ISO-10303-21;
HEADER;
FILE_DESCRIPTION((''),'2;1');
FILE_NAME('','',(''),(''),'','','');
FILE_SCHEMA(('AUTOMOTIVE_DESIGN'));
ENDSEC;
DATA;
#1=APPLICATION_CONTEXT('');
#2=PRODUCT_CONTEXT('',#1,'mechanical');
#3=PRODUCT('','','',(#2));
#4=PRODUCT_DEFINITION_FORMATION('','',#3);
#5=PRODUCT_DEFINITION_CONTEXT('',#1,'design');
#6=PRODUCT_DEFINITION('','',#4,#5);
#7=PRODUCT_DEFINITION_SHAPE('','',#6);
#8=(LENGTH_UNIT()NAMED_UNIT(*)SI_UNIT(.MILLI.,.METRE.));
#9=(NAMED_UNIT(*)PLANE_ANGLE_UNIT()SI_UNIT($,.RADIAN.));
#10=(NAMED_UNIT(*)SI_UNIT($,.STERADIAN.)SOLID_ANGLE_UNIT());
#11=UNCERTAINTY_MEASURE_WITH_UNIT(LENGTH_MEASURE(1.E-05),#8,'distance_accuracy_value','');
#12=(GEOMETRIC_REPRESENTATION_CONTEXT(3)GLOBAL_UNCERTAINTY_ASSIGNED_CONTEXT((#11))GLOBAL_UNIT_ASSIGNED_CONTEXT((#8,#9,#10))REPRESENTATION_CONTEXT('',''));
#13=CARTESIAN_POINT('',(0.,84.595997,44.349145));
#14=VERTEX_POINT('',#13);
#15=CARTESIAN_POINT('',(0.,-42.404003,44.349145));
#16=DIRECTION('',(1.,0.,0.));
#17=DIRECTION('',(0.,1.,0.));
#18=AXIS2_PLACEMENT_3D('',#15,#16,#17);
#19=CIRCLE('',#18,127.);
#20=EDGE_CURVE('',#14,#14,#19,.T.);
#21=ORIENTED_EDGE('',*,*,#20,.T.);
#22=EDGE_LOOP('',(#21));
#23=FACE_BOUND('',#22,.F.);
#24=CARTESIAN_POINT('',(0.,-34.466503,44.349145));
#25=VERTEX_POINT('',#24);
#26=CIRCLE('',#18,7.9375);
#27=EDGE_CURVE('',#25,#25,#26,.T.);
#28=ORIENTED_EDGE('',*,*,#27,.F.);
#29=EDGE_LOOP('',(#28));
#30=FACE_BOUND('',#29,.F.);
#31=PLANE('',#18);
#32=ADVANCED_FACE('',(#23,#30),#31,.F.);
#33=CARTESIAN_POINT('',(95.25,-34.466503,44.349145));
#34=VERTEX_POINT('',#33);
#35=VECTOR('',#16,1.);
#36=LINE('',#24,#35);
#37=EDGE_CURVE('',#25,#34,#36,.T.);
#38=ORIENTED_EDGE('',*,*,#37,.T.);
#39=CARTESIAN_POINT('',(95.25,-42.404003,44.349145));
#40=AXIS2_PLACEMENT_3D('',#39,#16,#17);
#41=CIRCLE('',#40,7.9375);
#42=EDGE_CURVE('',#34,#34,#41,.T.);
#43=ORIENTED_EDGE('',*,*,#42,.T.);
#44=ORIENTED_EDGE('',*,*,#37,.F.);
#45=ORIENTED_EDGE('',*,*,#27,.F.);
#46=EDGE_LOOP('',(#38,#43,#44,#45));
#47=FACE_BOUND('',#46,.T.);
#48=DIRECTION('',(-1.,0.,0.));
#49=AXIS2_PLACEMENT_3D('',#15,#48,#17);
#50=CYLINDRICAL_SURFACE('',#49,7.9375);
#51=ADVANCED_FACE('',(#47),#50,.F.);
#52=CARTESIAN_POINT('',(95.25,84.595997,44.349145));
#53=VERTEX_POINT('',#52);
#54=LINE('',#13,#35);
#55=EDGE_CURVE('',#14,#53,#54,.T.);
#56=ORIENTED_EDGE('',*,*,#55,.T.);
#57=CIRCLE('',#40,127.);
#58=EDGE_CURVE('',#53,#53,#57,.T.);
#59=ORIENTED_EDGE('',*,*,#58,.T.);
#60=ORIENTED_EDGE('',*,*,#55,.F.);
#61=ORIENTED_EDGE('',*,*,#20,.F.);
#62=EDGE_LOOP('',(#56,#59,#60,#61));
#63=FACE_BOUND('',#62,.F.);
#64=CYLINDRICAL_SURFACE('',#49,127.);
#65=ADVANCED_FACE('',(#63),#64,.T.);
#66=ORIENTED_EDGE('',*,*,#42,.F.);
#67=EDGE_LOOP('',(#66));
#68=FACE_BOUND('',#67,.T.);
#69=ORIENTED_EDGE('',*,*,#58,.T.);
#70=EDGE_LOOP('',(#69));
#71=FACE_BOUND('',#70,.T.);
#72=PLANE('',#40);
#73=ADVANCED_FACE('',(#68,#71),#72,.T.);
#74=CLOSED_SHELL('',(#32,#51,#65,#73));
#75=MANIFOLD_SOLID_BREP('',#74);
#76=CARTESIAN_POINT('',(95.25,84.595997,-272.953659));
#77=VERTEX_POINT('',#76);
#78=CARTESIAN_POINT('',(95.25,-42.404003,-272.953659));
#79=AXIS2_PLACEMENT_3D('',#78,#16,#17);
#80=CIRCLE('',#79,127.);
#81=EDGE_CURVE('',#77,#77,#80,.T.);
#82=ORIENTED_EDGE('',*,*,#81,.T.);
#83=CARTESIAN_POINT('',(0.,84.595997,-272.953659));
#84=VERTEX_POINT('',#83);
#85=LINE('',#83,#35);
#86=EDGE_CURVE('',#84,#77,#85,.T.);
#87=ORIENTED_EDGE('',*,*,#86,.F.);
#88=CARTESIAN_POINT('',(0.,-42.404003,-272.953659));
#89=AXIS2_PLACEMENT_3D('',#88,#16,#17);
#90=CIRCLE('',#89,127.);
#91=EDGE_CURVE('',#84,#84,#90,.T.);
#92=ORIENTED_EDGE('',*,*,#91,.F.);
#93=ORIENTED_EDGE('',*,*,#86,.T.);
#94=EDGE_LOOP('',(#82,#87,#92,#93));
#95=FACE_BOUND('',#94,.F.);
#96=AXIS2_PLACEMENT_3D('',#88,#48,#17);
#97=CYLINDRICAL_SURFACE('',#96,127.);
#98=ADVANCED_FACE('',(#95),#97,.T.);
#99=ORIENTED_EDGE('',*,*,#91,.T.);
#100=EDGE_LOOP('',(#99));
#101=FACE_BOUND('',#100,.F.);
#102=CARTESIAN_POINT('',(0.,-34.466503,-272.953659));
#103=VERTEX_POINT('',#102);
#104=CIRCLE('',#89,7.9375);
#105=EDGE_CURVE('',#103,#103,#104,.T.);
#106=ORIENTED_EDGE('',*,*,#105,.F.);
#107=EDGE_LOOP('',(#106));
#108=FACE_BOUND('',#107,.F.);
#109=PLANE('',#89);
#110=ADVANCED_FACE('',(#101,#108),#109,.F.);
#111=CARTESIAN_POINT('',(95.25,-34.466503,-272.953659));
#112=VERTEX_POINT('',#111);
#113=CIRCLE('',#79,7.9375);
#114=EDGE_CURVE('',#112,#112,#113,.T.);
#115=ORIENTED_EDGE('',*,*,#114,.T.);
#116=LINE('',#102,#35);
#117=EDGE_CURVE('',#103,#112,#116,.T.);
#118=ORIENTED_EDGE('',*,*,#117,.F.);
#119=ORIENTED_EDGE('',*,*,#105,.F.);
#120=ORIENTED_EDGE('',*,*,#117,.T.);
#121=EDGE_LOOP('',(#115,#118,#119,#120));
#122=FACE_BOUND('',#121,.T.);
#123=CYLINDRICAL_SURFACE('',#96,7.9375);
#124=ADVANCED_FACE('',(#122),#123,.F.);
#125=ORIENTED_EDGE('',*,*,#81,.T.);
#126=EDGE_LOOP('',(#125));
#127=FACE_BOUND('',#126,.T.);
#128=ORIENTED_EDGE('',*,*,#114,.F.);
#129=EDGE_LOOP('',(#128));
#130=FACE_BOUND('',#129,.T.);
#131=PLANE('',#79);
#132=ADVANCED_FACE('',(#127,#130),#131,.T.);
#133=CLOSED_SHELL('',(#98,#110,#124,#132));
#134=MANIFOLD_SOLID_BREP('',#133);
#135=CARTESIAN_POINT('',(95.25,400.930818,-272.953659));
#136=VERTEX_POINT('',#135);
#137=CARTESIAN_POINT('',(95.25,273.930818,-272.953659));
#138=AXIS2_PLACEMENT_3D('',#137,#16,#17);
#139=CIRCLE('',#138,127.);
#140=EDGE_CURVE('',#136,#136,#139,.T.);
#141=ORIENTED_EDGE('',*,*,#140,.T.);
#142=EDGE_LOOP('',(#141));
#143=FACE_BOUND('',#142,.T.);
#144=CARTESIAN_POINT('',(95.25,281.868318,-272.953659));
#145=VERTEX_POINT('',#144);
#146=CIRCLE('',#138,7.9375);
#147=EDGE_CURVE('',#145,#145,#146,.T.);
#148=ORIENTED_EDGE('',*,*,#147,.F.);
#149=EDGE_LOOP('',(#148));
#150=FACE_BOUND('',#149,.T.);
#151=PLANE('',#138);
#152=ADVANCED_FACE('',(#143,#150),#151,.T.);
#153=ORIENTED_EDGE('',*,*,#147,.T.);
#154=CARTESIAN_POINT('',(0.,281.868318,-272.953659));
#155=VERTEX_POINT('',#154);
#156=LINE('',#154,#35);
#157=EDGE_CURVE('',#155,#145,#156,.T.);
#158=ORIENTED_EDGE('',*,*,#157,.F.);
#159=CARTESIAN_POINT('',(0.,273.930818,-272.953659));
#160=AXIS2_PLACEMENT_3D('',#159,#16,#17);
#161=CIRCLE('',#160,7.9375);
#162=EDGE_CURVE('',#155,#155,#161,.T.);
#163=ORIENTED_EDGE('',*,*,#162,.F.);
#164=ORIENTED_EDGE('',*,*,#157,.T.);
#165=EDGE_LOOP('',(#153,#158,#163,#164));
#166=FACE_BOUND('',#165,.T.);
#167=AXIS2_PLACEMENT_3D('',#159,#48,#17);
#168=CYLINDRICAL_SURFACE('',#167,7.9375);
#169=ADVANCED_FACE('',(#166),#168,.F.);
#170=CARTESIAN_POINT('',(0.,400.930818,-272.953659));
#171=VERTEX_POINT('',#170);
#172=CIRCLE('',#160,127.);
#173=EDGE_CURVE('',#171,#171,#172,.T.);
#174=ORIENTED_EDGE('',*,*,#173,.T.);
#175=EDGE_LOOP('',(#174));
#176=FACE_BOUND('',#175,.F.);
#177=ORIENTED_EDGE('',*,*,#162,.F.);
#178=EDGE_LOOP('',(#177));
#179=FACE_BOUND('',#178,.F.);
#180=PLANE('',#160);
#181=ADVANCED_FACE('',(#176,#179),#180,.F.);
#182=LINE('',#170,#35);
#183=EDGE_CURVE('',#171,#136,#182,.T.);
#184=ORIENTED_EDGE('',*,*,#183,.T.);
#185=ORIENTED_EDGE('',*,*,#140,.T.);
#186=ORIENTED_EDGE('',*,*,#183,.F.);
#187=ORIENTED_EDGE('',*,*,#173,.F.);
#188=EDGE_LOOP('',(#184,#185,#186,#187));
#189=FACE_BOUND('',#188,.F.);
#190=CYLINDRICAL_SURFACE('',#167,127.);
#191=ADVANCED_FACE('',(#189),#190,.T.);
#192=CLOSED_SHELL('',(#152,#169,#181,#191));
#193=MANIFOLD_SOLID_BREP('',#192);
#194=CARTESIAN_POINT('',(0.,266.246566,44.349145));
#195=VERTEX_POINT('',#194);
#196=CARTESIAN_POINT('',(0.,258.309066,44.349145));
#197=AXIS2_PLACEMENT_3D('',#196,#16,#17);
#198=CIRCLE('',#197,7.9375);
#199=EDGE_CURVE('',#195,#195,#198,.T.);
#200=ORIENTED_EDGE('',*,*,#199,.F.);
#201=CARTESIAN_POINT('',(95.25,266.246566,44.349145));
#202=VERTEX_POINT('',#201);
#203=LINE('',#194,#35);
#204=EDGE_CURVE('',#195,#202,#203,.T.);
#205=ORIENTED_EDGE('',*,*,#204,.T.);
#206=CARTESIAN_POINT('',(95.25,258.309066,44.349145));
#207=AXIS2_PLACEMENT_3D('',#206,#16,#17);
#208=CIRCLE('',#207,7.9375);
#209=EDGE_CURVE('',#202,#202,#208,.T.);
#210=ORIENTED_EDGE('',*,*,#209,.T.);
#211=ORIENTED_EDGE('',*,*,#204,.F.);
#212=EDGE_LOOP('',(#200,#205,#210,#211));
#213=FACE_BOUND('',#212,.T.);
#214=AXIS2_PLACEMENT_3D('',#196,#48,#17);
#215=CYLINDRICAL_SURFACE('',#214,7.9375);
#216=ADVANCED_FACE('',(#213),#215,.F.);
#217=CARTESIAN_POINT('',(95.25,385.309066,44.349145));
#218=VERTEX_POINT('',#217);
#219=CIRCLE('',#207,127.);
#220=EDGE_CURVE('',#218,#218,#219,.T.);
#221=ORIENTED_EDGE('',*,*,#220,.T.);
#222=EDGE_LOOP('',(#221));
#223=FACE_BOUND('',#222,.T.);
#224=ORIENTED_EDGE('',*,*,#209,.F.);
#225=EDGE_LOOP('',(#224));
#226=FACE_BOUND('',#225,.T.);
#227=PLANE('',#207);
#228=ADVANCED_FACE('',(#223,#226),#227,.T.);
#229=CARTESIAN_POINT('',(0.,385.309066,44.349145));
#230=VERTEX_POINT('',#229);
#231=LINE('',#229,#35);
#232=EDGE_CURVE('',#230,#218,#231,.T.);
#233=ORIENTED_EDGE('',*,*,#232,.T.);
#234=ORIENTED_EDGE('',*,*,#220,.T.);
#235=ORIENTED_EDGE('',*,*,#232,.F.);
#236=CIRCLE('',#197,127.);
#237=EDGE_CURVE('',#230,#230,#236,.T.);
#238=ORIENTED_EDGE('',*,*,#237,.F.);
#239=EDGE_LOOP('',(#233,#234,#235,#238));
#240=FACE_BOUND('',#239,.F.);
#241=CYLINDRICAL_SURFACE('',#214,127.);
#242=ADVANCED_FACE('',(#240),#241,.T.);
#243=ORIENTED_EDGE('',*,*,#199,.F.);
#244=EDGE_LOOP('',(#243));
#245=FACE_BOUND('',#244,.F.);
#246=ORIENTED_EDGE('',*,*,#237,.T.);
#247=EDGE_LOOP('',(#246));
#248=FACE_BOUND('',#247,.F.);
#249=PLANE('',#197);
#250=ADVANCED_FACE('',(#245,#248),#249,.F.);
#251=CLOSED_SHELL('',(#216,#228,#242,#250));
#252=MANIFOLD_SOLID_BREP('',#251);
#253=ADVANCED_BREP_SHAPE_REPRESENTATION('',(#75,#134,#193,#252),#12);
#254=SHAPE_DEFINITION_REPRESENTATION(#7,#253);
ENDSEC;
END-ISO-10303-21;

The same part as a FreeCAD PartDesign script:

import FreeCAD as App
import Part
import Sketcher
from FreeCAD import Vector
Q = App.Units.Quantity

doc = App.newDocument("Part")
body = doc.addObject("PartDesign::Body", "Body")
body.AllowCompound = True

# Sketch on YZ plane
sketch1 = doc.addObject("Sketcher::SketchObject", "Sketch")
body.addObject(sketch1)
sketch1.AttachmentSupport = (doc.YZ_Plane, [""])
sketch1.MapMode = "FlatFace"
sketch1.addGeometry(Part.Circle(Vector(-42, 44, 0), Vector(0, 0, 1), 127), False)
sketch1.addGeometry(Part.Circle(Vector(-42, 44, 0), Vector(0, 0, 1), 8), False)
sketch1.addGeometry(Part.Circle(Vector(258, 44, 0), Vector(0, 0, 1), 127), False)
sketch1.addGeometry(Part.Circle(Vector(258, 44, 0), Vector(0, 0, 1), 8), False)
sketch1.addGeometry(Part.Circle(Vector(274, -273, 0), Vector(0, 0, 1), 127), False)
sketch1.addGeometry(Part.Circle(Vector(274, -273, 0), Vector(0, 0, 1), 8), False)
sketch1.addGeometry(Part.Circle(Vector(-42, -273, 0), Vector(0, 0, 1), 127), False)
sketch1.addGeometry(Part.Circle(Vector(-42, -273, 0), Vector(0, 0, 1), 8), False)
sketch1.addConstraint(Sketcher.Constraint("Coincident", 1, 3, 0, 3))
sketch1.addConstraint(Sketcher.Constraint("Coincident", 3, 3, 2, 3))
sketch1.addConstraint(Sketcher.Constraint("Coincident", 5, 3, 4, 3))
sketch1.addConstraint(Sketcher.Constraint("Coincident", 7, 3, 6, 3))
sketch1.addConstraint(Sketcher.Constraint("Equal", 0, 2))
sketch1.addConstraint(Sketcher.Constraint("Equal", 1, 3))
sketch1.addConstraint(Sketcher.Constraint("Equal", 2, 4))
sketch1.addConstraint(Sketcher.Constraint("Equal", 3, 5))
sketch1.addConstraint(Sketcher.Constraint("Equal", 4, 6))
sketch1.addConstraint(Sketcher.Constraint("Equal", 5, 7))
sketch1.addConstraint(Sketcher.Constraint("Horizontal", 1, 3, 2, 3))
sketch1.addConstraint(Sketcher.Constraint("Horizontal", 5, 3, 6, 3))
sketch1.addConstraint(Sketcher.Constraint("Vertical", 1, 3, 6, 3))
sketch1.addConstraint(Sketcher.Constraint("Diameter", 0, Q("10 in")))
sketch1.addConstraint(Sketcher.Constraint("Diameter", 1, Q("0.625 in")))
sketch1.addConstraint(Sketcher.Constraint("DistanceX", -1, 1, 4, 3, 273.930818))
sketch1.addConstraint(Sketcher.Constraint("DistanceY", 4, 3, -1, 1, 272.953659))
sketch1.addConstraint(Sketcher.Constraint("DistanceX", 0, 3, 2, 3, 300.713069))
sketch1.addConstraint(Sketcher.Constraint("DistanceX", 0, 3, 4, 3, 316.334821))
sketch1.addConstraint(Sketcher.Constraint("DistanceY", -1, 1, 0, 3, 44.349145))
pad1 = doc.addObject("PartDesign::Pad", "Pad")
body.addObject(pad1)
pad1.Profile = sketch1
pad1.Length = Q("3.75 in")

doc.recompute()
